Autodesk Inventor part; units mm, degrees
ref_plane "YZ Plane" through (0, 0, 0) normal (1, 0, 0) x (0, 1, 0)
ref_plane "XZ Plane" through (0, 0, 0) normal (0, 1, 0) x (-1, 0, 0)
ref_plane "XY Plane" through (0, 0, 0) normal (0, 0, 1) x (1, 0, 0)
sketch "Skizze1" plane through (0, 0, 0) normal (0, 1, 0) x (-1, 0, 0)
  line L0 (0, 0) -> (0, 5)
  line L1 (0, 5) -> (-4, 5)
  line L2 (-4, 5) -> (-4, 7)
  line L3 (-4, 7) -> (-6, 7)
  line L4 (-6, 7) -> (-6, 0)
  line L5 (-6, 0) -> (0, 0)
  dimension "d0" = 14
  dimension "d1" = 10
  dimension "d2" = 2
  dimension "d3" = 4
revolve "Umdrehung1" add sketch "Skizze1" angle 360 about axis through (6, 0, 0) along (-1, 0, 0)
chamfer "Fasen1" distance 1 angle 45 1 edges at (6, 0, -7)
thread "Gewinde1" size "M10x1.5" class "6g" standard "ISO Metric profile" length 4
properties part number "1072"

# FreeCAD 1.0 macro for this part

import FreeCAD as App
import Part
import Sketcher
from FreeCAD import Vector
Q = App.Units.Quantity


def edges_at(feature, points):
    """Names of the edges that pass closest to the given points."""
    edges = feature.Shape.Edges
    near = lambda p: min(range(len(edges)), key=lambda i: edges[i].distToShape(Part.Vertex(*p))[0])
    return sorted({f"Edge{near(p) + 1}" for p in points})


def add_polygon(sketch, points):
    """Adds a closed chain of lines whose ends are joined by coincident constraints."""
    first, n = sketch.GeometryCount, len(points)
    for a, b in zip(points, points[1:] + points[:1]):
        sketch.addGeometry(Part.LineSegment(App.Vector(*a, 0), App.Vector(*b, 0)), False)
    for i in range(n):
        sketch.addConstraint(Sketcher.Constraint("Coincident", first + i, 2, first + (i + 1) % n, 1))

doc = App.newDocument("Part")
body = doc.addObject("PartDesign::Body", "Body")

sketch1 = body.newObject("Sketcher::SketchObject", "Sketch")
sketch1.AttachmentSupport = (doc.getObject("XZ_Plane"), [""])
sketch1.MapMode = "FlatFace"
add_polygon(sketch1, [(6, 0), (0, 0), (0, 5), (4, 5), (4, 7), (6, 7)])
sketch1.addConstraint(Sketcher.Constraint("Horizontal", 0))
sketch1.addConstraint(Sketcher.Constraint("Vertical", 1))
sketch1.addConstraint(Sketcher.Constraint("Horizontal", 2))
sketch1.addConstraint(Sketcher.Constraint("Vertical", 3))
sketch1.addConstraint(Sketcher.Constraint("Horizontal", 4))
sketch1.addConstraint(Sketcher.Constraint("Vertical", 5))
sketch1.addConstraint(Sketcher.Constraint("Coincident", 0, 2, -1, 1))
sketch1.addConstraint(Sketcher.Constraint("Equal", 4, 3))
sketch1.addConstraint(Sketcher.Constraint("DistanceX", 2, 1, 2, 2, Q("4 mm")))
sketch1.addConstraint(Sketcher.Constraint("DistanceX", 4, 1, 4, 2, Q("2 mm")))
sketch1.addConstraint(Sketcher.Constraint("DistanceY", 1, 1, 1, 2, Q("5 mm")))
revolution = body.newObject("PartDesign::Revolution", "Revolution")
revolution.Profile = sketch1
revolution.ReferenceAxis = (sketch1, ["H_Axis"])
revolution.Angle = 360
doc.recompute()

chamfer = body.newObject("PartDesign::Chamfer", "Chamfer")
chamfer.Base = (revolution, edges_at(revolution, [(6, 0, -7)]))
chamfer.Size = 1

doc.recompute()
